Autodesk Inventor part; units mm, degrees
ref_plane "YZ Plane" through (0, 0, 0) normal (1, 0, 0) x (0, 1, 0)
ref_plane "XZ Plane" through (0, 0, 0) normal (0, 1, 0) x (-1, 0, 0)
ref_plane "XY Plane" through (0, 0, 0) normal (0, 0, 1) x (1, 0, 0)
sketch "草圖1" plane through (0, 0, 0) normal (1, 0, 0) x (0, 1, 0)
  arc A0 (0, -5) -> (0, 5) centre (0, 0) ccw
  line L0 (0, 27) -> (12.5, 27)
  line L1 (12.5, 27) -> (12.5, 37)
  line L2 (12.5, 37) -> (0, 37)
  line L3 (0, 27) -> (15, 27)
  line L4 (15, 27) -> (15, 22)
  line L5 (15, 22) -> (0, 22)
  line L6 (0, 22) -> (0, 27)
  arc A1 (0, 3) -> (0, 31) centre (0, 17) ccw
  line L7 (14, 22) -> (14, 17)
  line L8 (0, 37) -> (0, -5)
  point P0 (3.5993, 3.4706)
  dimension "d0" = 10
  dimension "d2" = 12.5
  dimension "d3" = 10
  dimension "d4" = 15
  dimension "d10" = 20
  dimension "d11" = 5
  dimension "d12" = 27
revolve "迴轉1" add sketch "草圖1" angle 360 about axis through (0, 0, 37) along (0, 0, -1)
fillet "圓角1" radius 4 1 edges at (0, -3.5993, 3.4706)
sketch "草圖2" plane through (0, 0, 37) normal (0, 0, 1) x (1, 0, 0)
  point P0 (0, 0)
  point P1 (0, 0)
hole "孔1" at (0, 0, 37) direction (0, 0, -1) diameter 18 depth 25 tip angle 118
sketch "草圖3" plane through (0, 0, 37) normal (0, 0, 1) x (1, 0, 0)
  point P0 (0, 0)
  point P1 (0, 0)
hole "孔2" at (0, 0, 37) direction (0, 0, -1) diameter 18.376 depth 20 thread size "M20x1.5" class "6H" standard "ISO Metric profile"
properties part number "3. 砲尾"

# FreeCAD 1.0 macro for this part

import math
import FreeCAD as App
import Part
import Sketcher


def edges_at(feature, points):
    """Names of the edges that pass closest to the given points."""
    edges = feature.Shape.Edges
    near = lambda p: min(range(len(edges)), key=lambda i: edges[i].distToShape(Part.Vertex(*p))[0])
    return sorted({f"Edge{near(p) + 1}" for p in points})

doc = App.newDocument("Part")
body = doc.addObject("PartDesign::Body", "Body")

# Sketch on YZ plane
sketch1 = doc.addObject("Sketcher::SketchObject", "Sketch")
body.addObject(sketch1)
sketch1.AttachmentSupport = (doc.YZ_Plane, [""])
sketch1.MapMode = "FlatFace"
sketch1.addGeometry([
    Part.ArcOfCircle(Part.Circle(App.Vector(0, 0, 0), App.Vector(0, 0, 1), 5), math.radians(-90), math.radians(44)),  # 0
    Part.ArcOfCircle(Part.Circle(App.Vector(0, 17, 0), App.Vector(0, 0, 1), 14), math.radians(-75), math.radians(0)),  # 1
    Part.LineSegment(App.Vector(14, 17, 0), App.Vector(14, 22, 0)),  # 2
    Part.LineSegment(App.Vector(14, 22, 0), App.Vector(15, 22, 0)),  # 3
    Part.LineSegment(App.Vector(15, 22, 0), App.Vector(15, 27, 0)),  # 4
    Part.LineSegment(App.Vector(15, 27, 0), App.Vector(12.5, 27, 0)),  # 5
    Part.LineSegment(App.Vector(12.5, 27, 0), App.Vector(12.5, 37, 0)),  # 6
    Part.LineSegment(App.Vector(12.5, 37, 0), App.Vector(0, 37, 0)),  # 7
    Part.LineSegment(App.Vector(0, 37, 0), App.Vector(0, -5, 0)),  # 8
], False)
sketch1.addConstraint([
    Sketcher.Constraint("Coincident", 0, 2, 1, 1),
    Sketcher.Constraint("Tangent", 1, 2, 2, 1),
    Sketcher.Constraint("Coincident", 2, 2, 3, 1),
    Sketcher.Constraint("Coincident", 3, 2, 4, 1),
    Sketcher.Constraint("Coincident", 4, 2, 5, 1),
    Sketcher.Constraint("Coincident", 5, 2, 6, 1),
    Sketcher.Constraint("Coincident", 6, 2, 7, 1),
    Sketcher.Constraint("Coincident", 7, 2, 8, 1),
    Sketcher.Constraint("Coincident", 8, 2, 0, 1),
    Sketcher.Constraint("Vertical", 2),
    Sketcher.Constraint("Horizontal", 3),
    Sketcher.Constraint("Vertical", 4),
    Sketcher.Constraint("Horizontal", 5),
    Sketcher.Constraint("Vertical", 6),
    Sketcher.Constraint("Horizontal", 7),
    Sketcher.Constraint("Vertical", 8),
    Sketcher.Constraint("Coincident", 0, 3, -1, 1),
    Sketcher.Constraint("PointOnObject", 1, 3, -2),
    Sketcher.Constraint("PointOnObject", 7, 2, -2),
    Sketcher.Constraint("Equal", 2, 4),
    Sketcher.Constraint("Radius", 0, 5.0),
    Sketcher.Constraint("DistanceY", 2, 1, 2, 2, 5.0),
    Sketcher.Constraint("DistanceY", 6, 1, 6, 2, 10.0),
    Sketcher.Constraint("DistanceX", 7, 2, 7, 1, 12.5),
    Sketcher.Constraint("DistanceX", -1, 1, 3, 2, 15.0),
    Sketcher.Constraint("DistanceY", -1, 1, 4, 2, 27.0),
    Sketcher.Constraint("Radius", 1, 14.0),
])
revolution = doc.addObject("PartDesign::Revolution", "Revolution")
body.addObject(revolution)
revolution.Profile = sketch1
revolution.ReferenceAxis = (sketch1, ["V_Axis"])
revolution.Angle = 360
doc.recompute()

fillet = doc.addObject("PartDesign::Fillet", "Fillet")
body.addObject(fillet)
fillet.Base = (revolution, edges_at(revolution, [(0, -3.599, 3.471)]))
fillet.Radius = 4

# Sketch on XY plane
sketch2 = doc.addObject("Sketcher::SketchObject", "Sketch001")
body.addObject(sketch2)
sketch2.AttachmentSupport = (doc.XY_Plane, [""])
sketch2.MapMode = "FlatFace"
sketch2.AttachmentOffset = App.Placement(App.Vector(0, 0, 37), App.Rotation())
sketch2.addGeometry(Part.Circle(App.Vector(0, 0, 0), App.Vector(0, 0, 1), 9), False)
sketch2.addConstraint([
    Sketcher.Constraint("Coincident", 0, 3, -1, 1),
    Sketcher.Constraint("Diameter", 0, 18.0),
])
doc.recompute()
hole = doc.addObject("PartDesign::Hole", "Hole")
body.addObject(hole)
hole.Profile = sketch2
hole.ThreadType = "None"
hole.Diameter = 18
hole.DepthType = "Dimension"
hole.Depth = 25
hole.DrillPoint = "Angled"
hole.DrillPointAngle = 118

# Sketch on XY plane
sketch3 = doc.addObject("Sketcher::SketchObject", "Sketch002")
body.addObject(sketch3)
sketch3.AttachmentSupport = (doc.XY_Plane, [""])
sketch3.MapMode = "FlatFace"
sketch3.AttachmentOffset = App.Placement(App.Vector(0, 0, 37), App.Rotation())
sketch3.addGeometry(Part.Circle(App.Vector(0, 0, 0), App.Vector(0, 0, 1), 9), False)
sketch3.addConstraint([
    Sketcher.Constraint("Coincident", 0, 3, -1, 1),
    Sketcher.Constraint("Diameter", 0, 18.376),
])
doc.recompute()
hole2 = doc.addObject("PartDesign::Hole", "Hole001")
body.addObject(hole2)
hole2.Profile = sketch3
hole2.ThreadType = "None"
hole2.Diameter = 18.376
hole2.DepthType = "Dimension"
hole2.Depth = 20
hole2.DrillPoint = "Flat"

doc.recompute()
